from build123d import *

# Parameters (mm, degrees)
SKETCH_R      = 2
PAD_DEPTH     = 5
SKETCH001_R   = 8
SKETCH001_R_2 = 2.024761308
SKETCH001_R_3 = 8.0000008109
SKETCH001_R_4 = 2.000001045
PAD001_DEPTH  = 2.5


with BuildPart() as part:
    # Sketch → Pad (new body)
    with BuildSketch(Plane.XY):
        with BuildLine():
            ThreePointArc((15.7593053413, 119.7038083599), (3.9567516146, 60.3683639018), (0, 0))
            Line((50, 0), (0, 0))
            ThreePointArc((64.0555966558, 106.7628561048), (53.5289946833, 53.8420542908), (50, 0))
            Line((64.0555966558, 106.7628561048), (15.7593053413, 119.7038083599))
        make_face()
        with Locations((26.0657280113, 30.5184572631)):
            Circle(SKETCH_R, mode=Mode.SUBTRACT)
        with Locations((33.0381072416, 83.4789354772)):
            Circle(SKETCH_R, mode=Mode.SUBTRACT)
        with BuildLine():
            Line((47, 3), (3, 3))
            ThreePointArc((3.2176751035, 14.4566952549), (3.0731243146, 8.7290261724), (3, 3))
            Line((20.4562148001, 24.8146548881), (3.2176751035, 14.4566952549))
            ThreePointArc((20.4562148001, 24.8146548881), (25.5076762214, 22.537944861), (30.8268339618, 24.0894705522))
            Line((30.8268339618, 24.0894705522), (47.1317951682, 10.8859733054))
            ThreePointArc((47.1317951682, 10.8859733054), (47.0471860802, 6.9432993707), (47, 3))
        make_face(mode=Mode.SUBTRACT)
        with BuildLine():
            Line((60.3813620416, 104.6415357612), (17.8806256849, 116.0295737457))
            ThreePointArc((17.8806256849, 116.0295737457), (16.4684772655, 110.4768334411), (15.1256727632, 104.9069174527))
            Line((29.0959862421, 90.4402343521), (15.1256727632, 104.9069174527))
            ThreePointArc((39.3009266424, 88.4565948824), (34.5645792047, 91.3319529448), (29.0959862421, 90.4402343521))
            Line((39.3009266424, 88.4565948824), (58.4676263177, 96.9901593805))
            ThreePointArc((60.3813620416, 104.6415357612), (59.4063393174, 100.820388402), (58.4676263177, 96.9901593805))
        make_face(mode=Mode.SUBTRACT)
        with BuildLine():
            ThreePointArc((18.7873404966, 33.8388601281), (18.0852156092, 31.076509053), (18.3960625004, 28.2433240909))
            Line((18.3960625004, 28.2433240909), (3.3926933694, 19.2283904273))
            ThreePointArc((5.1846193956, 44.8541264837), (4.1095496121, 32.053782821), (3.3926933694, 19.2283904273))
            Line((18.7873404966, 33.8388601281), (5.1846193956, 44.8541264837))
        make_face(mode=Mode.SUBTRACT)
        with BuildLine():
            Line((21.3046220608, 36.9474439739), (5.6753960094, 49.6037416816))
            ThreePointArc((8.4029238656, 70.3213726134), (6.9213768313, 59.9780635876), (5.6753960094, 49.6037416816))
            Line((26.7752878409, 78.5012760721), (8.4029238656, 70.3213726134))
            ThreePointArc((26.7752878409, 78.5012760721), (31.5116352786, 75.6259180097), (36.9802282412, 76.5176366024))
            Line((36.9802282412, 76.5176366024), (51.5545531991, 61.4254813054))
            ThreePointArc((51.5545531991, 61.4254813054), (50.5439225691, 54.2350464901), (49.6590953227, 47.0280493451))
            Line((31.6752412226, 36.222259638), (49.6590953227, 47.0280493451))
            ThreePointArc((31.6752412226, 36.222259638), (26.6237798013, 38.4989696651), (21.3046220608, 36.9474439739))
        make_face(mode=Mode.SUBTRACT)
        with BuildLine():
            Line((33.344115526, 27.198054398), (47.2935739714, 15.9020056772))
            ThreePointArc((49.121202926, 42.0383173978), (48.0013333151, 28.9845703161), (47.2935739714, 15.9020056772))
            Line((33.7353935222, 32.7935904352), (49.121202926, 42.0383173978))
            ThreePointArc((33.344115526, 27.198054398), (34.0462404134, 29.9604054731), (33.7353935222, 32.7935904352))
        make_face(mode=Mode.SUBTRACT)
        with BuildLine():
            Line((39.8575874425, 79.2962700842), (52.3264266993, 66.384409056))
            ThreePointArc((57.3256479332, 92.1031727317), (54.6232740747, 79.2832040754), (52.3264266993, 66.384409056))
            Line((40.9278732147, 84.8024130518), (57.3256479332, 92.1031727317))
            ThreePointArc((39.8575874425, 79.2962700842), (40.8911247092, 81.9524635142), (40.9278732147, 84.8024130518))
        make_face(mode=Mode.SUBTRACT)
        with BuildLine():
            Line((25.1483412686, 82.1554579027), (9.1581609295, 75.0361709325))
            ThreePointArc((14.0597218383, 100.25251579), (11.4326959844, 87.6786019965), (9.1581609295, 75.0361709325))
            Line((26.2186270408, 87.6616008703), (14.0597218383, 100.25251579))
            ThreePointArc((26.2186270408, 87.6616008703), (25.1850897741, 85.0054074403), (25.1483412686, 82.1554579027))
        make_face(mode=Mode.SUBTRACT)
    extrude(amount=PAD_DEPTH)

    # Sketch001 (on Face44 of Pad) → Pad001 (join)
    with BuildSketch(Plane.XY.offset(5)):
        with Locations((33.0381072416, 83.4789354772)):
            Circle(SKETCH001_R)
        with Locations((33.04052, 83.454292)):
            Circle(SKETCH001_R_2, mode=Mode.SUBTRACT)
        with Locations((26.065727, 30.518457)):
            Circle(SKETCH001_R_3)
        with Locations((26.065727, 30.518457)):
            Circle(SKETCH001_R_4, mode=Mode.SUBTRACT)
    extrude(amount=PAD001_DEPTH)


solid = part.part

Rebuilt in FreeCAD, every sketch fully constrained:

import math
import FreeCAD as App
import Part
import Sketcher
Q = App.Units.Quantity

doc = App.newDocument("Part")
params = doc.addObject("Spreadsheet::Sheet", "Params")
for row, (alias, value) in enumerate([
    ("sketch1_diameter", "4 mm"),
    ("sketch1_radius", "8 mm"),
    ("sketch1_radius2", "462.5 mm"),
    ("sketch1_radius3", "412.5 mm"),
    ("sketch1_width", "44 mm"),
    ("pad1_length", "5 mm"),
    ("sketch2_diameter", "16 mm"),
    ("pad2_length", "2.5 mm"),
], start=1):
    params.set(f"A{row}", alias)
    params.set(f"B{row}", "=" + value)
    params.setAlias(f"B{row}", alias)

body = doc.addObject("PartDesign::Body", "Body")

sketch1 = doc.addObject("Sketcher::SketchObject", "Sketch")
body.addObject(sketch1)
sketch1.AttachmentSupport = (doc.XY_Plane, [""])
sketch1.MapMode = "FlatFace"
sketch1.addGeometry(Part.ArcOfCircle(Part.Circle(App.Vector(462.5, 0, 0), App.Vector(0, 0, 1), 462.5), math.radians(165), math.radians(180)), False)
sketch1.addGeometry(Part.LineSegment(App.Vector(0, 0, 0), App.Vector(50, 0, 0)), False)
sketch1.addGeometry(Part.ArcOfCircle(Part.Circle(App.Vector(462.5, 0, 0), App.Vector(0, 0, 1), 412.5), math.radians(165), math.radians(180)), False)
sketch1.addGeometry(Part.LineSegment(App.Vector(64.1, 106.8, 0), App.Vector(15.8, 119.7, 0)), False)
sketch1.addGeometry(Part.ArcOfCircle(Part.Circle(App.Vector(462.5, 0, 0), App.Vector(0, 0, 1), 415.5), math.radians(178.5), math.radians(179.59)), False)
sketch1.addGeometry(Part.LineSegment(App.Vector(47, 3, 0), App.Vector(3, 3, 0)), False)
sketch1.addGeometry(Part.ArcOfCircle(Part.Circle(App.Vector(462.5, 0, 0), App.Vector(0, 0, 1), 459.5), math.radians(178.2), math.radians(179.63)), False)
sketch1.addGeometry(Part.LineSegment(App.Vector(3.2, 14.5, 0), App.Vector(20.5, 24.8, 0)), False)
sketch1.addGeometry(Part.ArcOfCircle(Part.Circle(App.Vector(26.1, 30.5, 0), App.Vector(0, 0, 1), 8), math.radians(-135), math.radians(-53)), False)
sketch1.addGeometry(Part.LineSegment(App.Vector(30.8, 24.1, 0), App.Vector(47.1, 10.9, 0)), False)
sketch1.addGeometry(Part.Circle(App.Vector(26.1, 30.5, 0), App.Vector(0, 0, 1), 2), False)
sketch1.addGeometry(Part.LineSegment(App.Vector(5.2, 44.9, 0), App.Vector(18.8, 33.8, 0)), False)
sketch1.addGeometry(Part.ArcOfCircle(Part.Circle(App.Vector(26.1, 30.5, 0), App.Vector(0, 0, 1), 8), math.radians(155), math.radians(197)), False)
sketch1.addGeometry(Part.LineSegment(App.Vector(18.4, 28.2, 0), App.Vector(3.4, 19.2, 0)), False)
sketch1.addGeometry(Part.ArcOfCircle(Part.Circle(App.Vector(462.5, 0, 0), App.Vector(0, 0, 1), 459.5), math.radians(174.4), math.radians(177.6)), False)
sketch1.addGeometry(Part.ArcOfCircle(Part.Circle(App.Vector(26.1, 30.5, 0), App.Vector(0, 0, 1), 8), math.radians(45), math.radians(127)), False)
sketch1.addGeometry(Part.LineSegment(App.Vector(21.3, 36.9, 0), App.Vector(5.7, 49.6, 0)), False)
sketch1.addGeometry(Part.ArcOfCircle(Part.Circle(App.Vector(462.5, 0, 0), App.Vector(0, 0, 1), 459.5), math.radians(171.2), math.radians(173.8)), False)
sketch1.addGeometry(Part.LineSegment(App.Vector(8.4, 70.3, 0), App.Vector(26.8, 78.5, 0)), False)
sketch1.addGeometry(Part.ArcOfCircle(Part.Circle(App.Vector(33, 83.5, 0), App.Vector(0, 0, 1), 8), math.radians(-142), math.radians(-60)), False)
sketch1.addGeometry(Part.LineSegment(App.Vector(37, 76.5, 0), App.Vector(51.6, 61.4, 0)), False)
sketch1.addGeometry(Part.ArcOfCircle(Part.Circle(App.Vector(462.5, 0, 0), App.Vector(0, 0, 1), 415.5), math.radians(171.5), math.radians(173.5)), False)
sketch1.addGeometry(Part.LineSegment(App.Vector(49.7, 47, 0), App.Vector(31.7, 36.2, 0)), False)
sketch1.addGeometry(Part.LineSegment(App.Vector(47.3, 15.9, 0), App.Vector(33.3, 27.2, 0)), False)
sketch1.addGeometry(Part.ArcOfCircle(Part.Circle(App.Vector(26.1, 30.5, 0), App.Vector(0, 0, 1), 8), math.radians(-25), math.radians(17)), False)
sketch1.addGeometry(Part.LineSegment(App.Vector(33.7, 32.8, 0), App.Vector(49.1, 42, 0)), False)
sketch1.addGeometry(Part.ArcOfCircle(Part.Circle(App.Vector(462.5, 0, 0), App.Vector(0, 0, 1), 415.5), math.radians(174.19), math.radians(177.81)), False)
sketch1.addGeometry(Part.ArcOfCircle(Part.Circle(App.Vector(33, 83.5, 0), App.Vector(0, 0, 1), 8), math.radians(148), math.radians(190)), False)
sketch1.addGeometry(Part.LineSegment(App.Vector(25.1, 82.2, 0), App.Vector(9.2, 75, 0)), False)
sketch1.addGeometry(Part.ArcOfCircle(Part.Circle(App.Vector(462.5, 0, 0), App.Vector(0, 0, 1), 459.5), math.radians(167.4), math.radians(170.6)), False)
sketch1.addGeometry(Part.LineSegment(App.Vector(14.1, 100.3, 0), App.Vector(26.2, 87.7, 0)), False)
sketch1.addGeometry(Part.Circle(App.Vector(33, 83.5, 0), App.Vector(0, 0, 1), 2), False)
sketch1.addGeometry(Part.LineSegment(App.Vector(52.3, 66.4, 0), App.Vector(39.9, 79.3, 0)), False)
sketch1.addGeometry(Part.ArcOfCircle(Part.Circle(App.Vector(33, 83.5, 0), App.Vector(0, 0, 1), 8), math.radians(-32), math.radians(10)), False)
sketch1.addGeometry(Part.LineSegment(App.Vector(40.9, 84.8, 0), App.Vector(57.3, 92.1, 0)), False)
sketch1.addGeometry(Part.ArcOfCircle(Part.Circle(App.Vector(462.5, 0, 0), App.Vector(0, 0, 1), 415.5), math.radians(167.19), math.radians(170.81)), False)
sketch1.addGeometry(Part.LineSegment(App.Vector(17.9, 116, 0), App.Vector(60.4, 104.6, 0)), False)
sketch1.addGeometry(Part.ArcOfCircle(Part.Circle(App.Vector(462.5, 0, 0), App.Vector(0, 0, 1), 415.5), math.radians(165.41), math.radians(166.5)), False)
sketch1.addGeometry(Part.LineSegment(App.Vector(58.5, 97, 0), App.Vector(39.3, 88.5, 0)), False)
sketch1.addGeometry(Part.ArcOfCircle(Part.Circle(App.Vector(33, 83.5, 0), App.Vector(0, 0, 1), 8), math.radians(38), math.radians(120)), False)
sketch1.addGeometry(Part.LineSegment(App.Vector(29.1, 90.4, 0), App.Vector(15.1, 104.9, 0)), False)
sketch1.addGeometry(Part.ArcOfCircle(Part.Circle(App.Vector(462.5, 0, 0), App.Vector(0, 0, 1), 459.5), math.radians(165.37), math.radians(166.8)), False)
sketch1.addConstraint(Sketcher.Constraint("Coincident", 0, 2, 1, 1))
sketch1.addConstraint(Sketcher.Constraint("Coincident", 1, 2, 2, 2))
sketch1.addConstraint(Sketcher.Constraint("Coincident", 2, 1, 3, 1))
sketch1.addConstraint(Sketcher.Constraint("Coincident", 3, 2, 0, 1))
sketch1.addConstraint(Sketcher.Constraint("Coincident", 4, 2, 5, 1))
sketch1.addConstraint(Sketcher.Constraint("Coincident", 5, 2, 6, 2))
sketch1.addConstraint(Sketcher.Constraint("Coincident", 6, 1, 7, 1))
sketch1.addConstraint(Sketcher.Constraint("Coincident", 7, 2, 8, 1))
sketch1.addConstraint(Sketcher.Constraint("Coincident", 8, 2, 9, 1))
sketch1.addConstraint(Sketcher.Constraint("Coincident", 9, 2, 4, 1))
sketch1.addConstraint(Sketcher.Constraint("Coincident", 11, 2, 12, 1))
sketch1.addConstraint(Sketcher.Constraint("Coincident", 12, 2, 13, 1))
sketch1.addConstraint(Sketcher.Constraint("Coincident", 13, 2, 14, 2))
sketch1.addConstraint(Sketcher.Constraint("Coincident", 14, 1, 11, 1))
sketch1.addConstraint(Sketcher.Constraint("Coincident", 15, 2, 16, 1))
sketch1.addConstraint(Sketcher.Constraint("Coincident", 16, 2, 17, 2))
sketch1.addConstraint(Sketcher.Constraint("Coincident", 17, 1, 18, 1))
sketch1.addConstraint(Sketcher.Constraint("Coincident", 18, 2, 19, 1))
sketch1.addConstraint(Sketcher.Constraint("Coincident", 19, 2, 20, 1))
sketch1.addConstraint(Sketcher.Constraint("Coincident", 20, 2, 21, 1))
sketch1.addConstraint(Sketcher.Constraint("Coincident", 21, 2, 22, 1))
sketch1.addConstraint(Sketcher.Constraint("Coincident", 22, 2, 15, 1))
sketch1.addConstraint(Sketcher.Constraint("Coincident", 23, 2, 24, 1))
sketch1.addConstraint(Sketcher.Constraint("Coincident", 24, 2, 25, 1))
sketch1.addConstraint(Sketcher.Constraint("Coincident", 25, 2, 26, 1))
sketch1.addConstraint(Sketcher.Constraint("Coincident", 26, 2, 23, 1))
sketch1.addConstraint(Sketcher.Constraint("Coincident", 27, 2, 28, 1))
sketch1.addConstraint(Sketcher.Constraint("Coincident", 28, 2, 29, 2))
sketch1.addConstraint(Sketcher.Constraint("Coincident", 29, 1, 30, 1))
sketch1.addConstraint(Sketcher.Constraint("Coincident", 30, 2, 27, 1))
sketch1.addConstraint(Sketcher.Constraint("Coincident", 32, 2, 33, 1))
sketch1.addConstraint(Sketcher.Constraint("Coincident", 33, 2, 34, 1))
sketch1.addConstraint(Sketcher.Constraint("Coincident", 34, 2, 35, 1))
sketch1.addConstraint(Sketcher.Constraint("Coincident", 35, 2, 32, 1))
sketch1.addConstraint(Sketcher.Constraint("Coincident", 36, 2, 37, 1))
sketch1.addConstraint(Sketcher.Constraint("Coincident", 37, 2, 38, 1))
sketch1.addConstraint(Sketcher.Constraint("Coincident", 38, 2, 39, 1))
sketch1.addConstraint(Sketcher.Constraint("Coincident", 39, 2, 40, 1))
sketch1.addConstraint(Sketcher.Constraint("Coincident", 40, 2, 41, 2))
sketch1.addConstraint(Sketcher.Constraint("Coincident", 41, 1, 36, 1))
sketch1.addConstraint(Sketcher.Constraint("Horizontal", 1))
sketch1.addConstraint(Sketcher.Constraint("Horizontal", 5))
sketch1.addConstraint(Sketcher.Constraint("Coincident", 2, 3, 0, 3))
sketch1.addConstraint(Sketcher.Constraint("Coincident", 4, 3, 0, 3))
sketch1.addConstraint(Sketcher.Constraint("Coincident", 6, 3, 0, 3))
sketch1.addConstraint(Sketcher.Constraint("Coincident", 10, 3, 8, 3))
sketch1.addConstraint(Sketcher.Constraint("Coincident", 12, 3, 8, 3))
sketch1.addConstraint(Sketcher.Constraint("Coincident", 14, 3, 0, 3))
sketch1.addConstraint(Sketcher.Constraint("Coincident", 15, 3, 8, 3))
sketch1.addConstraint(Sketcher.Constraint("Coincident", 17, 3, 0, 3))
sketch1.addConstraint(Sketcher.Constraint("Coincident", 21, 3, 0, 3))
sketch1.addConstraint(Sketcher.Constraint("Coincident", 24, 3, 8, 3))
sketch1.addConstraint(Sketcher.Constraint("Coincident", 26, 3, 0, 3))
sketch1.addConstraint(Sketcher.Constraint("Coincident", 27, 3, 19, 3))
sketch1.addConstraint(Sketcher.Constraint("Coincident", 29, 3, 0, 3))
sketch1.addConstraint(Sketcher.Constraint("Coincident", 31, 3, 19, 3))
sketch1.addConstraint(Sketcher.Constraint("Coincident", 33, 3, 19, 3))
sketch1.addConstraint(Sketcher.Constraint("Coincident", 35, 3, 0, 3))
sketch1.addConstraint(Sketcher.Constraint("Coincident", 37, 3, 0, 3))
sketch1.addConstraint(Sketcher.Constraint("Coincident", 39, 3, 19, 3))
sketch1.addConstraint(Sketcher.Constraint("Coincident", 41, 3, 0, 3))
sketch1.addConstraint(Sketcher.Constraint("Equal", 8, 12))
sketch1.addConstraint(Sketcher.Constraint("Equal", 6, 14))
sketch1.addConstraint(Sketcher.Constraint("Equal", 12, 15))
sketch1.addConstraint(Sketcher.Constraint("Equal", 14, 17))
sketch1.addConstraint(Sketcher.Constraint("Equal", 15, 19))
sketch1.addConstraint(Sketcher.Constraint("Equal", 4, 21))
sketch1.addConstraint(Sketcher.Constraint("Equal", 19, 24))
sketch1.addConstraint(Sketcher.Constraint("Equal", 21, 26))
sketch1.addConstraint(Sketcher.Constraint("Equal", 24, 27))
sketch1.addConstraint(Sketcher.Constraint("Equal", 17, 29))
sketch1.addConstraint(Sketcher.Constraint("Equal", 10, 31))
sketch1.addConstraint(Sketcher.Constraint("Equal", 27, 33))
sketch1.addConstraint(Sketcher.Constraint("Equal", 26, 35))
sketch1.addConstraint(Sketcher.Constraint("Equal", 35, 37))
sketch1.addConstraint(Sketcher.Constraint("Equal", 33, 39))
sketch1.addConstraint(Sketcher.Constraint("Equal", 29, 41))
sketch1.addConstraint(Sketcher.Constraint("PointOnObject", 0, 3, -1))
sketch1.addConstraint(Sketcher.Constraint("PointOnObject", 1, 2, -1))
sketch1.addConstraint(Sketcher.Constraint("Parallel", 9, 11))
sketch1.addConstraint(Sketcher.Constraint("Parallel", 7, 13))
sketch1.addConstraint(Sketcher.Constraint("Parallel", 11, 16))
sketch1.addConstraint(Sketcher.Constraint("Parallel", 13, 22))
sketch1.addConstraint(Sketcher.Constraint("Parallel", 16, 23))
sketch1.addConstraint(Sketcher.Constraint("Parallel", 22, 25))
sketch1.addConstraint(Sketcher.Constraint("Parallel", 18, 28))
sketch1.addConstraint(Sketcher.Constraint("Parallel", 20, 30))
sketch1.addConstraint(Sketcher.Constraint("Parallel", 30, 32))
sketch1.addConstraint(Sketcher.Constraint("Parallel", 28, 34))
sketch1.addConstraint(Sketcher.Constraint("Parallel", 3, 36))
sketch1.addConstraint(Sketcher.Constraint("Parallel", 34, 38))
sketch1.addConstraint(Sketcher.Constraint("Parallel", 32, 40))
sketch1.addConstraint(Sketcher.Constraint("Equal", 11, 13))
sketch1.addConstraint(Sketcher.Constraint("Equal", 7, 16))
sketch1.addConstraint(Sketcher.Constraint("Equal", 16, 18))
sketch1.addConstraint(Sketcher.Constraint("Equal", 9, 20))
sketch1.addConstraint(Sketcher.Constraint("Equal", 20, 22))
sketch1.addConstraint(Sketcher.Constraint("Equal", 23, 25))
sketch1.addConstraint(Sketcher.Constraint("Equal", 13, 28))
sketch1.addConstraint(Sketcher.Constraint("Equal", 28, 30))
sketch1.addConstraint(Sketcher.Constraint("Equal", 25, 32))
sketch1.addConstraint(Sketcher.Constraint("Equal", 32, 34))
sketch1.addConstraint(Sketcher.Constraint("Equal", 22, 38))
sketch1.addConstraint(Sketcher.Constraint("Equal", 18, 40))
sketch1.addConstraint(Sketcher.Constraint("Diameter", 10, Q("4 mm")))
sketch1.addConstraint(Sketcher.Constraint("Radius", 8, Q("8 mm")))
sketch1.addConstraint(Sketcher.Constraint("Radius", 0, Q("462.5 mm")))
sketch1.addConstraint(Sketcher.Constraint("Radius", 2, Q("412.5 mm")))
sketch1.addConstraint(Sketcher.Constraint("DistanceX", 5, 2, 5, 1, Q("44 mm")))
sketch1.addConstraint(Sketcher.Constraint("Angle", 3, Q("165 deg")))
sketch1.addConstraint(Sketcher.Constraint("Angle", 7, Q("31 deg")))
sketch1.addConstraint(Sketcher.Constraint("Angle", 9, Q("-39 deg")))
sketch1.addConstraint(Sketcher.Constraint("Angle", 18, Q("24 deg")))
sketch1.addConstraint(Sketcher.Constraint("Angle", 20, Q("-46 deg")))
sketch1.addConstraint(Sketcher.Constraint("DistanceX", -1, 1, 1, 2, Q("50 mm")))
sketch1.addConstraint(Sketcher.Constraint("DistanceX", -1, 1, 4, 2, Q("47 mm")))
sketch1.addConstraint(Sketcher.Constraint("DistanceY", -1, 1, 5, 2, Q("3 mm")))
sketch1.addConstraint(Sketcher.Constraint("Distance", 23, Q("17.949599 mm")))
sketch1.addConstraint(Sketcher.Constraint("DistanceY", -1, 1, 30, 2, Q("87.661601 mm")))
sketch1.addConstraint(Sketcher.Constraint("Distance", 11, Q("17.503431 mm")))
sketch1.addConstraint(Sketcher.Constraint("DistanceX", -1, 1, 8, 3, Q("26.065728 mm")))
sketch1.addConstraint(Sketcher.Constraint("DistanceY", -1, 1, 3, 2, Q("119.703808 mm")))
sketch1.addConstraint(Sketcher.Constraint("DistanceY", -1, 1, 8, 2, Q("24.089471 mm")))
sketch1.addConstraint(Sketcher.Constraint("DistanceX", -1, 1, 11, 2, Q("18.78734 mm")))
sketch1.addConstraint(Sketcher.Constraint("DistanceY", -1, 1, 16, 2, Q("49.603742 mm")))
sketch1.addConstraint(Sketcher.Constraint("DistanceX", -1, 1, 19, 2, Q("36.980228 mm")))
sketch1.addConstraint(Sketcher.Constraint("DistanceX", -1, 1, 36, 2, Q("60.381362 mm")))
sketch1.setExpression("Constraints[104]", "Params.sketch1_diameter")
sketch1.setExpression("Constraints[105]", "Params.sketch1_radius")
sketch1.setExpression("Constraints[106]", "Params.sketch1_radius2")
sketch1.setExpression("Constraints[107]", "Params.sketch1_radius3")
sketch1.setExpression("Constraints[108]", "Params.sketch1_width")
pad1 = doc.addObject("PartDesign::Pad", "Pad")
body.addObject(pad1)
pad1.Profile = sketch1
pad1.setExpression("Length", "Params.pad1_length")

sketch2 = doc.addObject("Sketcher::SketchObject", "Sketch001")
body.addObject(sketch2)
sketch2.AttachmentSupport = (doc.XY_Plane, [""])
sketch2.MapMode = "FlatFace"
sketch2.AttachmentOffset = App.Placement(App.Vector(0, 0, 5), App.Rotation())
sketch2.addGeometry(Part.Circle(App.Vector(33, 83.5, 0), App.Vector(0, 0, 1), 8), False)
sketch2.addGeometry(Part.Circle(App.Vector(33, 83.5, 0), App.Vector(0, 0, 1), 2), False)
sketch2.addGeometry(Part.Circle(App.Vector(26.1, 30.5, 0), App.Vector(0, 0, 1), 8), False)
sketch2.addGeometry(Part.Circle(App.Vector(26.1, 30.5, 0), App.Vector(0, 0, 1), 2), False)
sketch2.addConstraint(Sketcher.Constraint("Coincident", 3, 3, 2, 3))
sketch2.addConstraint(Sketcher.Constraint("Equal", 0, 2))
sketch2.addConstraint(Sketcher.Constraint("Diameter", 0, Q("16 mm")))
sketch2.addConstraint(Sketcher.Constraint("Diameter", 1, Q("4.049523 mm")))
sketch2.addConstraint(Sketcher.Constraint("Diameter", 3, Q("4.000002 mm")))
sketch2.addConstraint(Sketcher.Constraint("DistanceX", -1, 1, 1, 3, Q("33.04052 mm")))
sketch2.addConstraint(Sketcher.Constraint("DistanceY", -1, 1, 1, 3, Q("83.454292 mm")))
sketch2.addConstraint(Sketcher.Constraint("DistanceX", 2, 3, 0, 3, Q("6.97238 mm")))
sketch2.addConstraint(Sketcher.Constraint("DistanceY", 2, 3, 0, 3, Q("52.960478 mm")))
sketch2.addConstraint(Sketcher.Constraint("DistanceX", -1, 1, 0, 3, Q("33.038107 mm")))
sketch2.addConstraint(Sketcher.Constraint("DistanceY", -1, 1, 0, 3, Q("83.478935 mm")))
sketch2.setExpression("Constraints[2]", "Params.sketch2_diameter")
pad2 = doc.addObject("PartDesign::Pad", "Pad001")
body.addObject(pad2)
pad2.Profile = sketch2
pad2.setExpression("Length", "Params.pad2_length")

doc.recompute()
